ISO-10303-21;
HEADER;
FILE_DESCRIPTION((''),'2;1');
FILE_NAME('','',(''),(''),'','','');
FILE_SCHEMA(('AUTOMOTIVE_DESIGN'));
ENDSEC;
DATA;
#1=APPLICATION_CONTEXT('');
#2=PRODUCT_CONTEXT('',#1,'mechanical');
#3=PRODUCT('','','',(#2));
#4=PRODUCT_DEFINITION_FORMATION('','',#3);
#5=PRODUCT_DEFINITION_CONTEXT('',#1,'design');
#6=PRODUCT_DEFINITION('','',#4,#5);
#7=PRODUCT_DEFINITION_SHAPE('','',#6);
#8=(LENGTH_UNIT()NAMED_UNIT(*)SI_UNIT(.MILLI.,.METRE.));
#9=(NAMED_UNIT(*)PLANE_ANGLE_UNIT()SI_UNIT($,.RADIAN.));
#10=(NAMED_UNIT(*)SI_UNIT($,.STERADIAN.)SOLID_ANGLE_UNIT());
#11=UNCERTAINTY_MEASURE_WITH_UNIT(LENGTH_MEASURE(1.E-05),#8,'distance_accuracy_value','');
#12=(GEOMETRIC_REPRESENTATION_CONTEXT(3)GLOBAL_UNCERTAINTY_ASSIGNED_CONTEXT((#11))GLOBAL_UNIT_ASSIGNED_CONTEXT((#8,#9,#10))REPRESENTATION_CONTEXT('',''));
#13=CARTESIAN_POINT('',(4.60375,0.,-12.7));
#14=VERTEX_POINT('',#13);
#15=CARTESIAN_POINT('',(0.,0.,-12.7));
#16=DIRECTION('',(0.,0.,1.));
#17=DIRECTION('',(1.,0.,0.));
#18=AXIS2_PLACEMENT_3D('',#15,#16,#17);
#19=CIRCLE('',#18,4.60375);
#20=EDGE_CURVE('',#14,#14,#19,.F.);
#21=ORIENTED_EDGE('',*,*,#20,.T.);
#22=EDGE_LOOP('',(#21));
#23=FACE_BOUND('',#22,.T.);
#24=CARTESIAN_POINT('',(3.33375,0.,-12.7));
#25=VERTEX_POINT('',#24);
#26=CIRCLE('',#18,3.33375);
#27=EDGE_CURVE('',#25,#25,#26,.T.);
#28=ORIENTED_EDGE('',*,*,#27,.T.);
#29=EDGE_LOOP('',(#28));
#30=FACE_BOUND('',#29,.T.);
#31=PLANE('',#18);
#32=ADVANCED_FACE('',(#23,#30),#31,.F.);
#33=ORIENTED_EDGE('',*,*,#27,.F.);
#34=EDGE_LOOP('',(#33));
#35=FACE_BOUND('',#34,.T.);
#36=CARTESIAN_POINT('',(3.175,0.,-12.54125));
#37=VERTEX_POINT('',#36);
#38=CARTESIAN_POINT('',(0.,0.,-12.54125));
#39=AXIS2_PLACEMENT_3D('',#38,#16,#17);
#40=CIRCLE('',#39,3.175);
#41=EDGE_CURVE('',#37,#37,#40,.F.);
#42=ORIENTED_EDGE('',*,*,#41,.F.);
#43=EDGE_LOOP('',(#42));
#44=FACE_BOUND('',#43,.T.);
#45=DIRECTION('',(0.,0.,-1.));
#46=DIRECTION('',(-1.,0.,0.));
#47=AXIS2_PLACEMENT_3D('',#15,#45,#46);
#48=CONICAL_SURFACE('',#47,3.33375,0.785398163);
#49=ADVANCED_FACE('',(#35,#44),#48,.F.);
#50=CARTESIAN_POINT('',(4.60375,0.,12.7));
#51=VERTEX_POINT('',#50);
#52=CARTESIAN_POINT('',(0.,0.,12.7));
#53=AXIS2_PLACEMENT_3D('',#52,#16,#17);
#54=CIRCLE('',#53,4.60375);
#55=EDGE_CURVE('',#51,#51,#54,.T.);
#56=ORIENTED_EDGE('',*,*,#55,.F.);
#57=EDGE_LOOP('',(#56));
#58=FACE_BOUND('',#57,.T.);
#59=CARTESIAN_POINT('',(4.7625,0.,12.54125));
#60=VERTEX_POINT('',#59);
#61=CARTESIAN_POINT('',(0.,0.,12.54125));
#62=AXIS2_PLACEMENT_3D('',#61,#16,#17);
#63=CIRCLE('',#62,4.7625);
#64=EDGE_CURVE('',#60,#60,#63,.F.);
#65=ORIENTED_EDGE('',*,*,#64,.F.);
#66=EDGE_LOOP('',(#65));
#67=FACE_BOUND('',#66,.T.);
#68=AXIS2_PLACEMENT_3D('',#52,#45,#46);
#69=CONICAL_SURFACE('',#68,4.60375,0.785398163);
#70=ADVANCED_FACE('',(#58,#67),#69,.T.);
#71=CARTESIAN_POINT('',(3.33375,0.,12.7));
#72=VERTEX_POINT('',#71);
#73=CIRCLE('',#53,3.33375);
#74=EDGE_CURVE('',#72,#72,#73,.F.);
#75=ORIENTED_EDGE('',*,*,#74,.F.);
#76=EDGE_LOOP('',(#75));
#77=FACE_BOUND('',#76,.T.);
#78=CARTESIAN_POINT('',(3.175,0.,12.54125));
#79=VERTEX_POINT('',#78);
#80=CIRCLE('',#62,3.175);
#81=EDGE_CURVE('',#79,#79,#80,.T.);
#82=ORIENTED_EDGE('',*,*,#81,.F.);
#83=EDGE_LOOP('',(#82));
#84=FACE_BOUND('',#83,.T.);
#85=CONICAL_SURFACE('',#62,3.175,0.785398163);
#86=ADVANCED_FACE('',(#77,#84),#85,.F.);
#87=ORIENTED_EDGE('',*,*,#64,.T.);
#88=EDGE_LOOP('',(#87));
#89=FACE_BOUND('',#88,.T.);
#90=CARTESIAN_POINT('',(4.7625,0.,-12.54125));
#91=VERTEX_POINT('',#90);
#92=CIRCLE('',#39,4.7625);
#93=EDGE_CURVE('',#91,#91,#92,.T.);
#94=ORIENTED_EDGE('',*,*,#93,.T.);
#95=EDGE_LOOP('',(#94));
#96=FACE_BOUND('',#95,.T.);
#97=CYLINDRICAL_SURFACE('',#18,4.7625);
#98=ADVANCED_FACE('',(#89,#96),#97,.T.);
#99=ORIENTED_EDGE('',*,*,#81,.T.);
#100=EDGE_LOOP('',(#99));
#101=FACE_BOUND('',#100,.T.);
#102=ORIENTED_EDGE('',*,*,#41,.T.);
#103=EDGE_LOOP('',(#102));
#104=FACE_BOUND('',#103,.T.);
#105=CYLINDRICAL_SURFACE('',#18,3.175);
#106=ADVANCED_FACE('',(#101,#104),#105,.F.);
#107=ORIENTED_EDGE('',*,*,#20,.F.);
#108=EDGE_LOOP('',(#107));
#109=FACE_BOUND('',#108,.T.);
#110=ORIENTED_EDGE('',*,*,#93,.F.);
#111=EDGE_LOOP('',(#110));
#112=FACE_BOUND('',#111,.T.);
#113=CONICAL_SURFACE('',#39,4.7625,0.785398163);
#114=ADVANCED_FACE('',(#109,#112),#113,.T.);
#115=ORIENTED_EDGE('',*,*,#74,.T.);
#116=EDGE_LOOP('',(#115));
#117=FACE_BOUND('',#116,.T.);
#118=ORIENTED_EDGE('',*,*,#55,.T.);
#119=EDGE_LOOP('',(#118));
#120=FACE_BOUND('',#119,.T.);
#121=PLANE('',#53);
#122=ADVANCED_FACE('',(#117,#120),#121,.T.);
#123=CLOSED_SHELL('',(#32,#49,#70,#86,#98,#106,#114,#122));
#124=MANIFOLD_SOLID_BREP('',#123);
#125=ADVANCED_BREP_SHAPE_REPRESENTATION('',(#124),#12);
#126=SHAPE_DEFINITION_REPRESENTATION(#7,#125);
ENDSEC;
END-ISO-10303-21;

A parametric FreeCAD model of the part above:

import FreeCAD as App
import Part
import Sketcher
from FreeCAD import Vector
Q = App.Units.Quantity


def edges_at(feature, points):
    """Names of the edges that pass closest to the given points."""
    edges = feature.Shape.Edges
    near = lambda p: min(range(len(edges)), key=lambda i: edges[i].distToShape(Part.Vertex(*p))[0])
    return sorted({f"Edge{near(p) + 1}" for p in points})

doc = App.newDocument("Part")
params = doc.addObject("Spreadsheet::Sheet", "Params")
for row, (alias, value) in enumerate([
    ("sketch1_diameter", "0.25 in"),
    ("sketch1_diameter2", "0.375 in"),
    ("pad1_length", "0.5 in"),
    ("pad1_length2", "0.5 in"),
    ("chamfer_size", "0.15875 mm"),
], start=1):
    params.set(f"A{row}", alias)
    params.set(f"B{row}", "=" + value)
    params.setAlias(f"B{row}", alias)

body = doc.addObject("PartDesign::Body", "Body")

# Sketch on XY plane
sketch1 = body.newObject("Sketcher::SketchObject", "Sketch")
sketch1.AttachmentSupport = (doc.getObject("XY_Plane"), [""])
sketch1.MapMode = "FlatFace"
sketch1.addGeometry([
    Part.Circle(Vector(0, 0, 0), Vector(0, 0, 1), 4.8),
    Part.Circle(Vector(0, 0, 0), Vector(0, 0, 1), 3.2),
], False)
sketch1.addConstraint([
    Sketcher.Constraint("Coincident", 0, 3, -1, 1),
    Sketcher.Constraint("Coincident", 1, 3, -1, 1),
    Sketcher.Constraint("Diameter", 1, Q("0.25 in")),
    Sketcher.Constraint("Diameter", 0, Q("0.375 in")),
])
sketch1.setExpression("Constraints[2]", "Params.sketch1_diameter")
sketch1.setExpression("Constraints[3]", "Params.sketch1_diameter2")
pad1 = body.newObject("PartDesign::Pad", "Pad")
pad1.Profile = sketch1
pad1.Type = "TwoLengths"
pad1.setExpression("Length", "Params.pad1_length")
pad1.setExpression("Length2", "Params.pad1_length2")
doc.recompute()

chamfer = body.newObject("PartDesign::Chamfer", "Chamfer")
chamfer.Base = (pad1, edges_at(pad1, [
    (-4.763, 0, -12.7),
    (-3.175, 0, -12.7),
    (-4.763, 0, 12.7),
    (-3.175, 0, 12.7),
]))
chamfer.setExpression("Size", "Params.chamfer_size")

doc.recompute()
